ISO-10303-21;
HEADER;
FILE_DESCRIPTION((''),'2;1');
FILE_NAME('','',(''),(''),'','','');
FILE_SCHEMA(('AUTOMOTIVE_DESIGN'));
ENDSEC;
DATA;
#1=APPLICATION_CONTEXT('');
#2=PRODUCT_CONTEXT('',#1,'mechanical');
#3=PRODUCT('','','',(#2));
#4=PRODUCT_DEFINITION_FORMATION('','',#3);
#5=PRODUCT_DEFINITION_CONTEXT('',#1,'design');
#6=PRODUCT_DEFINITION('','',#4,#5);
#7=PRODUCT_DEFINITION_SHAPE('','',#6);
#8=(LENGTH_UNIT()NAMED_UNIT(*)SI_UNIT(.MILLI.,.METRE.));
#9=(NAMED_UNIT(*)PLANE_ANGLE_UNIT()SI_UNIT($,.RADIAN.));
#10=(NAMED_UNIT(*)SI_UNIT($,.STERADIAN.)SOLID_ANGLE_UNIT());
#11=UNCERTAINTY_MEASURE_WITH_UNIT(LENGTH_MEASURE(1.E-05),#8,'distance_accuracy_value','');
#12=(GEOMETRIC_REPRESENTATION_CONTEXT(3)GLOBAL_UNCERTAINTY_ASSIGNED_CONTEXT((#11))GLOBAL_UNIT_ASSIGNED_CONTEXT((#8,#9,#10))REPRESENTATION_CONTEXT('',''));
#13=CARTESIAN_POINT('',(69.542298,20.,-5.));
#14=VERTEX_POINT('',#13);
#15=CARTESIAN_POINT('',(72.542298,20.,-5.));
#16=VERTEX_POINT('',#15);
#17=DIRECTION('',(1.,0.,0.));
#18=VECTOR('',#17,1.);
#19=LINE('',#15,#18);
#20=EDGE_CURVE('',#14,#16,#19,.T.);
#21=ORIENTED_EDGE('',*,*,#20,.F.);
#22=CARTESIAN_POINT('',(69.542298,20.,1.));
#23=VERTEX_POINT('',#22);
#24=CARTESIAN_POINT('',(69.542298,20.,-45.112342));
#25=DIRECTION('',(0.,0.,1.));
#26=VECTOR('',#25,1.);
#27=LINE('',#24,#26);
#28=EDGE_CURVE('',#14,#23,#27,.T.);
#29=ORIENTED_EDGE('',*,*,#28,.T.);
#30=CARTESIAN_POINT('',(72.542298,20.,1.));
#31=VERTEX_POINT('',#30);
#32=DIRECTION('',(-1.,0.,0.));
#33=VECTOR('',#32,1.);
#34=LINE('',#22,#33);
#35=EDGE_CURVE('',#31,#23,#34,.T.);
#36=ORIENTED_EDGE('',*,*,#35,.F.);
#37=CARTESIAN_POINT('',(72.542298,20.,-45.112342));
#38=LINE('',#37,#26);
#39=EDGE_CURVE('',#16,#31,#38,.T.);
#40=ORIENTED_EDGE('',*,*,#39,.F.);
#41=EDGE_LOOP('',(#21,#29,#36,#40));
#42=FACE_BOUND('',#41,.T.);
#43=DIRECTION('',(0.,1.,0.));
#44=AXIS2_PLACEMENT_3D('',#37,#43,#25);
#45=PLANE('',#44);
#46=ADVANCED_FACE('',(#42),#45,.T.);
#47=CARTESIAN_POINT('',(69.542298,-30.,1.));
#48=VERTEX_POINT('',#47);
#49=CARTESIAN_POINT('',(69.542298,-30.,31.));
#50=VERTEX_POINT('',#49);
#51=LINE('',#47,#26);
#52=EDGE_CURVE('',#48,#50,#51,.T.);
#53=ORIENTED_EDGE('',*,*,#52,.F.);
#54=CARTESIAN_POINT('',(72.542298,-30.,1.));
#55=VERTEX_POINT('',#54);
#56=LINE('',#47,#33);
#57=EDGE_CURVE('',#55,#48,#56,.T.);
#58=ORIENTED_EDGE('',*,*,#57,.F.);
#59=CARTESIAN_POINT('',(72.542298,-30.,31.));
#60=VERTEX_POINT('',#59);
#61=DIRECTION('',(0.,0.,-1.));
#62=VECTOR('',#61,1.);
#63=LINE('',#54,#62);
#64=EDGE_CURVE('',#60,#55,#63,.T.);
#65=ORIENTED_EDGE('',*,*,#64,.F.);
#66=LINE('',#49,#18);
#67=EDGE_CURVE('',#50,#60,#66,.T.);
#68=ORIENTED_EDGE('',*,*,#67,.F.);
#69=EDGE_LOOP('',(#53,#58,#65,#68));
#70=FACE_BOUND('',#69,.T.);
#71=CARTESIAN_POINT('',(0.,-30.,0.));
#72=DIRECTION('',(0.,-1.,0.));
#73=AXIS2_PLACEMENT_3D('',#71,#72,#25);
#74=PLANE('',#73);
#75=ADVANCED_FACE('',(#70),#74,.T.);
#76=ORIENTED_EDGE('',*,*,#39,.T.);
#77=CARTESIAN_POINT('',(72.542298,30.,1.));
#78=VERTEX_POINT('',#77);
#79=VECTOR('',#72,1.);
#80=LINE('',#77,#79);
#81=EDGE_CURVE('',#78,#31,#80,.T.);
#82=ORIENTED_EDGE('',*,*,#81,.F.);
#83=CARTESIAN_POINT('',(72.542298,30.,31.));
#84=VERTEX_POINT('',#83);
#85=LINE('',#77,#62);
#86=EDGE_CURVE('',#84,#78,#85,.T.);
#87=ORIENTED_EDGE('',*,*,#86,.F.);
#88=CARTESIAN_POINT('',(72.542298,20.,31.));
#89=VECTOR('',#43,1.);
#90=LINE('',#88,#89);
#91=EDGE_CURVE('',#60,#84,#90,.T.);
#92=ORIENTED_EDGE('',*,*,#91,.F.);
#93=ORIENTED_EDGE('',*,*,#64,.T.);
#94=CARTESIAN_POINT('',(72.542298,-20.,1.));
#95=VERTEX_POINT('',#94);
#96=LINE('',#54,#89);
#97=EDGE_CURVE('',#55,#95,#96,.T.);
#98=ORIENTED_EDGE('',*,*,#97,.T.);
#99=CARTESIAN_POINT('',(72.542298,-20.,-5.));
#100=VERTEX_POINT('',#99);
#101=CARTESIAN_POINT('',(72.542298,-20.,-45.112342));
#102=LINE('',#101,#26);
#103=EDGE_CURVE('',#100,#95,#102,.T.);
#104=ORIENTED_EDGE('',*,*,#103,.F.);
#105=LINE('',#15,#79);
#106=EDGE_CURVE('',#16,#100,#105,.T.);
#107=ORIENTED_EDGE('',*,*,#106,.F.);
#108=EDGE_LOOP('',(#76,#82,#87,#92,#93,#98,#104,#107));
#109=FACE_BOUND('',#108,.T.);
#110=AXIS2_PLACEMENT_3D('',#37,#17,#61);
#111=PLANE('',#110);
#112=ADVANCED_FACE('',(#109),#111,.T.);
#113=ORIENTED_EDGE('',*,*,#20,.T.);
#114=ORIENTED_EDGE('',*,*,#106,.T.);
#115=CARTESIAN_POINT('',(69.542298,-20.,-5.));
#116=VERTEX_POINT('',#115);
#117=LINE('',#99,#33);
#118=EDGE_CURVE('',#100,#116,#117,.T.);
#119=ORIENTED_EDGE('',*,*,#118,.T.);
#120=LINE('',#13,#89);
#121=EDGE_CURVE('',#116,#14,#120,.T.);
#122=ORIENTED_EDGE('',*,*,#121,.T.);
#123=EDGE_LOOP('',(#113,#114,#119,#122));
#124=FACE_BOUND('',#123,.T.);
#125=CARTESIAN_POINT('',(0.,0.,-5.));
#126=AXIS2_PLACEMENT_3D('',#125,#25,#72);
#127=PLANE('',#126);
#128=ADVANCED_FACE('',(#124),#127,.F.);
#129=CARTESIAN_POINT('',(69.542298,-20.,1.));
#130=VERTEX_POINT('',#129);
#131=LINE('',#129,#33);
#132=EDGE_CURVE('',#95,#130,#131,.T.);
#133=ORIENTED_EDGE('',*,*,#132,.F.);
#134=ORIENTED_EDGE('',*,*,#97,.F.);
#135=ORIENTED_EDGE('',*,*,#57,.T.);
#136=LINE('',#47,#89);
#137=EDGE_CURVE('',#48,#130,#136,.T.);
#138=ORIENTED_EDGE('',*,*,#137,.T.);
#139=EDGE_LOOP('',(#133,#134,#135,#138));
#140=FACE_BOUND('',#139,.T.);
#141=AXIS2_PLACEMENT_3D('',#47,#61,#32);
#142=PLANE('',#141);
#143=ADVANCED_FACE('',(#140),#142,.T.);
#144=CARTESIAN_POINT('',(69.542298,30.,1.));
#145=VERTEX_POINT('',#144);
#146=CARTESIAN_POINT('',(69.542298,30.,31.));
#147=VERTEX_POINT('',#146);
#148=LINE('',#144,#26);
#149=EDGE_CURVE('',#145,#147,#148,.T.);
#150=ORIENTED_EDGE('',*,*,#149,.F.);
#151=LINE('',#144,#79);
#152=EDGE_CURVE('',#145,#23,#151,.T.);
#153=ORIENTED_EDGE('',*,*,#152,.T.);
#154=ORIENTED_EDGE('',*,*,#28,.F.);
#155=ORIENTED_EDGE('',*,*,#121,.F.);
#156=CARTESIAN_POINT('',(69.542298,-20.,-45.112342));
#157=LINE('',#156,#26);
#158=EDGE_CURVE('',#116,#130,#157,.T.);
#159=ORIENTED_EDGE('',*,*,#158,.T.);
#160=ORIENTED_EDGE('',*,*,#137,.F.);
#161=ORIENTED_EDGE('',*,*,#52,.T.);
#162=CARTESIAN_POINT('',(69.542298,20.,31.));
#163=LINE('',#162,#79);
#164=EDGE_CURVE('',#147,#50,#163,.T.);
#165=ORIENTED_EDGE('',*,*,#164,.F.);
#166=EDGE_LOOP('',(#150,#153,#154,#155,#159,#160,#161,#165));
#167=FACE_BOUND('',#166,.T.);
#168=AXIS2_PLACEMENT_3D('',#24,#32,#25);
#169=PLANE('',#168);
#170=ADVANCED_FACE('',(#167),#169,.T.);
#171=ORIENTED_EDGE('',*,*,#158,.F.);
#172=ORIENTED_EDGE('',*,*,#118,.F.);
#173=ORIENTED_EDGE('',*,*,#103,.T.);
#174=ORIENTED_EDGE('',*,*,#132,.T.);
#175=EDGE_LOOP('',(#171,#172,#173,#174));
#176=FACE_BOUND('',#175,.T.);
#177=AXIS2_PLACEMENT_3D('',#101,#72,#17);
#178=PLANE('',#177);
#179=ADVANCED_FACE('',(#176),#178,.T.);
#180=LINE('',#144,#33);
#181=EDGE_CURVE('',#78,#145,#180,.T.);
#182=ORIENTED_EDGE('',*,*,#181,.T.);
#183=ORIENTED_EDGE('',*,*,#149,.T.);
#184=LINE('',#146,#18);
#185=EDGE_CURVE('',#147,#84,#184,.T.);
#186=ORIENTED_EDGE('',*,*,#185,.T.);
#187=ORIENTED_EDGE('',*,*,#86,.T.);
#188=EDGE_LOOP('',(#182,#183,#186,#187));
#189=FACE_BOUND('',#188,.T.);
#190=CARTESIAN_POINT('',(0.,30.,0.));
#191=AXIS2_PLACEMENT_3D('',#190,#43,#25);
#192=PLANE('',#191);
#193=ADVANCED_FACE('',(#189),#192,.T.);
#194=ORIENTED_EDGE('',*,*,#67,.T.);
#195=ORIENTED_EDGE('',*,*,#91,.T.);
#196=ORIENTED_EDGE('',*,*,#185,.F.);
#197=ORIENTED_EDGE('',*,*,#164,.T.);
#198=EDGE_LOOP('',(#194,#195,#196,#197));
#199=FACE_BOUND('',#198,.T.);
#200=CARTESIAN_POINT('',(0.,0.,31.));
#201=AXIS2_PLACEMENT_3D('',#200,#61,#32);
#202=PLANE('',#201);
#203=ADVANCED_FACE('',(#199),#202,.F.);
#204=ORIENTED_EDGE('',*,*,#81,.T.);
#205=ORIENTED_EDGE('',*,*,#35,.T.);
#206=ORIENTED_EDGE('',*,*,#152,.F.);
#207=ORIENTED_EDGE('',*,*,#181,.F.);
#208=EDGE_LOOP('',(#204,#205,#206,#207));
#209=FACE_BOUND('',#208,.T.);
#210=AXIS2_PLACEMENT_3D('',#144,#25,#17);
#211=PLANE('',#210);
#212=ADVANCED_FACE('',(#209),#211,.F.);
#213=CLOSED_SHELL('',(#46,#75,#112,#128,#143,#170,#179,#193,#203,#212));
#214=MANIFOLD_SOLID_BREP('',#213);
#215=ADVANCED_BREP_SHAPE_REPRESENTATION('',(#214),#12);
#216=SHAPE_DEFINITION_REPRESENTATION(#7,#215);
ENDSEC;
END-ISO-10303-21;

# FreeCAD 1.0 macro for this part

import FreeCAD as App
import Part
import Sketcher
from FreeCAD import Vector


def add_polygon(sketch, points):
    """Adds a closed chain of lines whose ends are joined by coincident constraints."""
    first, n = sketch.GeometryCount, len(points)
    for a, b in zip(points, points[1:] + points[:1]):
        sketch.addGeometry(Part.LineSegment(App.Vector(*a, 0), App.Vector(*b, 0)), False)
    for i in range(n):
        sketch.addConstraint(Sketcher.Constraint("Coincident", first + i, 2, first + (i + 1) % n, 1))

doc = App.newDocument("Part")
body = doc.addObject("PartDesign::Body", "Body")

sketch1 = body.newObject("Sketcher::SketchObject", "Sketch")
sketch1.AttachmentSupport = (doc.getObject("XY_Plane"), [""])
sketch1.MapMode = "FlatFace"
sketch1.AttachmentOffset = App.Placement(Vector(0, 0, 1), App.Rotation())
add_polygon(sketch1, [(69.5, 20), (69.5, -20), (72.5, -20), (72.5, 20)])
sketch1.addConstraint(Sketcher.Constraint("Vertical", 0))
sketch1.addConstraint(Sketcher.Constraint("Horizontal", 1))
sketch1.addConstraint(Sketcher.Constraint("Vertical", 2))
sketch1.addConstraint(Sketcher.Constraint("Horizontal", 3))
sketch1.addConstraint(Sketcher.Constraint("DistanceX", 1, 1, 1, 2, 3.0))
sketch1.addConstraint(Sketcher.Constraint("DistanceY", 0, 2, 0, 1, 40.0))
sketch1.addConstraint(Sketcher.Constraint("DistanceY", 0, 2, -1, 1, 20.0))
sketch1.addConstraint(Sketcher.Constraint("DistanceX", -1, 1, 0, 2, 69.542298))
pad1 = body.newObject("PartDesign::Pad", "Pad")
pad1.Profile = sketch1
pad1.Type = "TwoLengths"
pad1.Length = 30
pad1.Length2 = 6

sketch2 = body.newObject("Sketcher::SketchObject", "Sketch001")
sketch2.AttachmentSupport = (doc.getObject("XZ_Plane"), [""])
sketch2.MapMode = "FlatFace"
sketch2.AttachmentOffset = App.Placement(Vector(0, 0, -20), App.Rotation())
add_polygon(sketch2, [(69.5, 1), (69.5, 31), (72.5, 31), (72.5, 1)])
sketch2.addConstraint(Sketcher.Constraint("Vertical", 0))
sketch2.addConstraint(Sketcher.Constraint("Horizontal", 1))
sketch2.addConstraint(Sketcher.Constraint("Vertical", 2))
sketch2.addConstraint(Sketcher.Constraint("Horizontal", 3))
sketch2.addConstraint(Sketcher.Constraint("DistanceX", 1, 1, 1, 2, 3.0))
sketch2.addConstraint(Sketcher.Constraint("DistanceY", 0, 1, 0, 2, 30.0))
sketch2.addConstraint(Sketcher.Constraint("DistanceY", -1, 1, 0, 2, 31.0))
sketch2.addConstraint(Sketcher.Constraint("DistanceX", -1, 1, 0, 2, 69.542298))
pad2 = body.newObject("PartDesign::Pad", "Pad001")
pad2.Profile = sketch2
pad2.Length = 10
pad2.Reversed = True
doc.recompute()

mirrored = body.newObject("PartDesign::Mirrored", "Mirrored")
mirrored.Originals = [pad2]
mirrored.MirrorPlane = (doc.getObject("XZ_Plane"), [""])
body.Tip = mirrored

doc.recompute()
